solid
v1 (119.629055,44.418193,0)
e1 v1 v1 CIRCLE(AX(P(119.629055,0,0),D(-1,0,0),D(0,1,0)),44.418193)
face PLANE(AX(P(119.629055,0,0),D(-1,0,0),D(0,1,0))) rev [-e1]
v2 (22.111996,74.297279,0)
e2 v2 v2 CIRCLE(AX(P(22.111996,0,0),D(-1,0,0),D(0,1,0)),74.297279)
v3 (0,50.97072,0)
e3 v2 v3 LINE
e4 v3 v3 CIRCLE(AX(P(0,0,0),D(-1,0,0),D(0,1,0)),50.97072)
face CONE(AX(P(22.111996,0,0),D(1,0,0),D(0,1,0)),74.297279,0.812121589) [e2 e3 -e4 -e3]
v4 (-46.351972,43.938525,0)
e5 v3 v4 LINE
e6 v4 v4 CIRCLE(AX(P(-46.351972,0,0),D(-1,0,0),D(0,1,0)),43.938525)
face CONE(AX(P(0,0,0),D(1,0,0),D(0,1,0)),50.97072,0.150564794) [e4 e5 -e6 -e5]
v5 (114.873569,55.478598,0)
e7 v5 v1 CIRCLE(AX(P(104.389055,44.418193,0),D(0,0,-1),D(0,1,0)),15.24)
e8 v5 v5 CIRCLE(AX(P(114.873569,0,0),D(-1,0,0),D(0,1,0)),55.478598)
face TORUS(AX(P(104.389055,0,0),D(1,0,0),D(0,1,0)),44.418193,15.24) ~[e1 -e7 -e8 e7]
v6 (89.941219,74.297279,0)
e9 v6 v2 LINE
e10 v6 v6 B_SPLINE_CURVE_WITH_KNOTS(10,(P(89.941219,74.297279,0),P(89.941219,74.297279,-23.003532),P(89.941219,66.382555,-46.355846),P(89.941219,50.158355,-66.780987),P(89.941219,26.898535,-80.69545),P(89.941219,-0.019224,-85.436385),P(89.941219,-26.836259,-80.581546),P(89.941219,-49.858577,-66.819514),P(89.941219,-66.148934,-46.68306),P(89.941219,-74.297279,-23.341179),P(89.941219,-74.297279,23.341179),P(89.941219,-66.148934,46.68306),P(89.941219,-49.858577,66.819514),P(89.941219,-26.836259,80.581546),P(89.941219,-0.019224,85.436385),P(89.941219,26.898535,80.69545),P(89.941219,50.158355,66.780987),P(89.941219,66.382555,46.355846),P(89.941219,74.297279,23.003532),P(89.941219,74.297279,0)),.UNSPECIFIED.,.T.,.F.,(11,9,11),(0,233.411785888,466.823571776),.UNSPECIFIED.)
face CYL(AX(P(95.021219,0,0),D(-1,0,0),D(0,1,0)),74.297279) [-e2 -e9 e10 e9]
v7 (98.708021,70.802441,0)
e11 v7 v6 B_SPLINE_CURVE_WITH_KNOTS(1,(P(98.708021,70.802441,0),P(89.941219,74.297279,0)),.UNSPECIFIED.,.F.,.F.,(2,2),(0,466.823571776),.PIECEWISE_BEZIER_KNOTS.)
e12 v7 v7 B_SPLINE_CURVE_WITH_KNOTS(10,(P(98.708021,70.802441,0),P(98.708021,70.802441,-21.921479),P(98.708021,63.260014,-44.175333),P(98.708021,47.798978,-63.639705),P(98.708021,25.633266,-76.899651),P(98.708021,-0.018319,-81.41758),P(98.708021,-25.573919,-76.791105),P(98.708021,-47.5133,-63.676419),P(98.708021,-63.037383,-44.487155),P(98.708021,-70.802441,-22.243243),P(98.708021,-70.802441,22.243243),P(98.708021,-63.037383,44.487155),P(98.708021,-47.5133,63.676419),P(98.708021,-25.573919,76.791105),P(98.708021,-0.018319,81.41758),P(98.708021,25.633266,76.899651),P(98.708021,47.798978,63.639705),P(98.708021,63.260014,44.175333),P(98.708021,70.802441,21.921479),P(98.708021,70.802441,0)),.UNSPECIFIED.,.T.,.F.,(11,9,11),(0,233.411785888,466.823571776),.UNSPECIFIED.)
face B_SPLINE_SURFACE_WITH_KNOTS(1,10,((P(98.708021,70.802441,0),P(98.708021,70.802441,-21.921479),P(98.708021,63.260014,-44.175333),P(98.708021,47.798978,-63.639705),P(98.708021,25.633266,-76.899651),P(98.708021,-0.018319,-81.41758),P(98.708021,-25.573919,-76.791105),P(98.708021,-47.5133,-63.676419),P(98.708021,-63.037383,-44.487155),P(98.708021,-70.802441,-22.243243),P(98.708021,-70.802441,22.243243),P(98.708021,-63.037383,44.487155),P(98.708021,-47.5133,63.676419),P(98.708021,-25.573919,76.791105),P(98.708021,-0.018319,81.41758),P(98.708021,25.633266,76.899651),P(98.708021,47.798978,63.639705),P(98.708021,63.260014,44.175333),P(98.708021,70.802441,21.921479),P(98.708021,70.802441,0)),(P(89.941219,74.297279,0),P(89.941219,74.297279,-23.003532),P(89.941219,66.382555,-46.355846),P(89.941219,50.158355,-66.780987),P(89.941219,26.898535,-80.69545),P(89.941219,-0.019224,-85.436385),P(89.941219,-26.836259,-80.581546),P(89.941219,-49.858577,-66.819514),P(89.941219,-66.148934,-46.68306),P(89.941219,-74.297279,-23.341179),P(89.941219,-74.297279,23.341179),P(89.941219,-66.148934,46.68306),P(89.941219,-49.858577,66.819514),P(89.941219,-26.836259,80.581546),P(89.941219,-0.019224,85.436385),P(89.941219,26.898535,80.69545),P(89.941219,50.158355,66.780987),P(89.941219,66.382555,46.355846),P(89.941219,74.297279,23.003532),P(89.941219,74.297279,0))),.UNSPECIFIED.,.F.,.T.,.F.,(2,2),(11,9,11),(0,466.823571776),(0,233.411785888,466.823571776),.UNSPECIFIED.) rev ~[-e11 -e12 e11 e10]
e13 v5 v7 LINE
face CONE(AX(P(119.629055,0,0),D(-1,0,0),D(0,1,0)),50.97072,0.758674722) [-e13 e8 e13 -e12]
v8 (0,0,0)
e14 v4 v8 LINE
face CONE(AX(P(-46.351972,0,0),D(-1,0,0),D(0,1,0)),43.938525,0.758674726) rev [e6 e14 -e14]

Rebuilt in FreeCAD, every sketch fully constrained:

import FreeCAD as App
import Part
import Sketcher
from FreeCAD import Vector
Q = App.Units.Quantity


def edges_at(feature, points):
    """Names of the edges that pass closest to the given points."""
    edges = feature.Shape.Edges
    near = lambda p: min(range(len(edges)), key=lambda i: edges[i].distToShape(Part.Vertex(*p))[0])
    return sorted({f"Edge{near(p) + 1}" for p in points})


def add_polygon(sketch, points):
    """Adds a closed chain of lines whose ends are joined by coincident constraints."""
    first, n = sketch.GeometryCount, len(points)
    for a, b in zip(points, points[1:] + points[:1]):
        sketch.addGeometry(Part.LineSegment(App.Vector(*a, 0), App.Vector(*b, 0)), False)
    for i in range(n):
        sketch.addConstraint(Sketcher.Constraint("Coincident", first + i, 2, first + (i + 1) % n, 1))

doc = App.newDocument("Part")
params = doc.addObject("Spreadsheet::Sheet", "Params")
for row, (alias, value) in enumerate([
    ("revolution_angle", "360 deg"),
    ("chamfer_size", "0.2 in"),
    ("fillet_radius", "0.6 in"),
], start=1):
    params.set(f"A{row}", alias)
    params.set(f"B{row}", "=" + value)
    params.setAlias(f"B{row}", alias)

body = doc.addObject("PartDesign::Body", "Body")

sketch1 = body.newObject("Sketcher::SketchObject", "Sketch")
sketch1.AttachmentSupport = (doc.getObject("XY_Plane"), [""])
sketch1.MapMode = "FlatFace"
add_polygon(sketch1, [(-46.351972, 43.938525), (0, 0), (119.629055, 0), (119.629055, 50.97072), (95.021219, 74.297279), (22.111996, 74.297279), (0, 50.97072)])
sketch1.addConstraint(Sketcher.Constraint("Horizontal", 1))
sketch1.addConstraint(Sketcher.Constraint("Vertical", 2))
sketch1.addConstraint(Sketcher.Constraint("Horizontal", 4))
sketch1.addConstraint(Sketcher.Constraint("Coincident", 0, 2, -1, 1))
sketch1.addConstraint(Sketcher.Constraint("PointOnObject", 5, 2, -2))
sketch1.addConstraint(Sketcher.Constraint("Parallel", 0, 3))
sketch1.addConstraint(Sketcher.Constraint("Perpendicular", 3, 5))
sketch1.addConstraint(Sketcher.Constraint("Horizontal", 2, 2, 5, 2))
sketch1.addConstraint(Sketcher.Constraint("DistanceY", 2, 1, 2, 2, Q("50.97072 mm")))
sketch1.addConstraint(Sketcher.Constraint("DistanceX", 1, 1, 1, 2, Q("119.629055 mm")))
sketch1.addConstraint(Sketcher.Constraint("DistanceX", 4, 2, 4, 1, Q("72.909223 mm")))
sketch1.addConstraint(Sketcher.Constraint("DistanceX", -1, 1, 3, 2, Q("95.021219 mm")))
sketch1.addConstraint(Sketcher.Constraint("DistanceX", 6, 2, 4, 2, Q("68.463968 mm")))
revolution = body.newObject("PartDesign::Revolution", "Revolution")
revolution.Profile = sketch1
revolution.ReferenceAxis = (sketch1, ["H_Axis"])
revolution.setExpression("Angle", "Params.revolution_angle")
doc.recompute()

chamfer = body.newObject("PartDesign::Chamfer", "Chamfer")
chamfer.Base = (revolution, edges_at(revolution, [(95.021, -74.297, 0)]))
chamfer.setExpression("Size", "Params.chamfer_size")
doc.recompute()

fillet = body.newObject("PartDesign::Fillet", "Fillet")
fillet.Base = (chamfer, edges_at(chamfer, [(119.629, -50.971, 0)]))
fillet.setExpression("Radius", "Params.fillet_radius")

doc.recompute()
